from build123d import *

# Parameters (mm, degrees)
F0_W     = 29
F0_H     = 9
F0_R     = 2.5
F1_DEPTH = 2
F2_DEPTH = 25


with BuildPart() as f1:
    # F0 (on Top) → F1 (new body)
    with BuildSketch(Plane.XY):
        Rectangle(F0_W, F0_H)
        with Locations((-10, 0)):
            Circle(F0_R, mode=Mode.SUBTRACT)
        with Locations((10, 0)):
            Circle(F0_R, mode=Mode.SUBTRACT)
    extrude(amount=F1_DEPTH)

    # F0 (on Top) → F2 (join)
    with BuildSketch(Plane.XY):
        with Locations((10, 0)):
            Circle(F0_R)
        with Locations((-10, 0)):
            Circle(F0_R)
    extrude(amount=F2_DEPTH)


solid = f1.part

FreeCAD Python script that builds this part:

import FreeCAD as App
import Part
import Sketcher

V = App.Vector

doc = App.newDocument("Part")
body = doc.addObject("PartDesign::Body", "Body")

# Sketch on XY plane
sketch1 = body.newObject("Sketcher::SketchObject", "Sketch")
sketch1.AttachmentSupport = (doc.getObject("XY_Plane"), [""])
sketch1.MapMode = "FlatFace"
sketch1.addGeometry(Part.LineSegment(V(-14.5, 4.5, 0), V(-14.5, -4.5, 0)), False)
sketch1.addGeometry(Part.LineSegment(V(-14.5, -4.5, 0), V(14.5, -4.5, 0)), False)
sketch1.addGeometry(Part.LineSegment(V(14.5, -4.5, 0), V(14.5, 4.5, 0)), False)
sketch1.addGeometry(Part.LineSegment(V(14.5, 4.5, 0), V(-14.5, 4.5, 0)), False)
sketch1.addGeometry(Part.Circle(V(-10, 0, 0), V(0, 0, 1), 2.5), False)
sketch1.addGeometry(Part.Circle(V(10, 0, 0), V(0, 0, 1), 2.5), False)
sketch1.addConstraint(Sketcher.Constraint("Coincident", 0, 2, 1, 1))
sketch1.addConstraint(Sketcher.Constraint("Coincident", 1, 2, 2, 1))
sketch1.addConstraint(Sketcher.Constraint("Coincident", 2, 2, 3, 1))
sketch1.addConstraint(Sketcher.Constraint("Coincident", 3, 2, 0, 1))
sketch1.addConstraint(Sketcher.Constraint("Vertical", 0))
sketch1.addConstraint(Sketcher.Constraint("Horizontal", 1))
sketch1.addConstraint(Sketcher.Constraint("Vertical", 2))
sketch1.addConstraint(Sketcher.Constraint("Horizontal", 3))
sketch1.addConstraint(Sketcher.Constraint("Equal", 4, 5))
sketch1.addConstraint(Sketcher.Constraint("Symmetric", 4, 3, 5, 3, -1, 1))
sketch1.addConstraint(Sketcher.Constraint("Symmetric", 0, 2, 2, 2, -1, 1))
sketch1.addConstraint(Sketcher.Constraint("PointOnObject", 4, 3, -1))
sketch1.addConstraint(Sketcher.Constraint("Diameter", 4, 5.0))
sketch1.addConstraint(Sketcher.Constraint("DistanceX", 1, 1, 1, 2, 29.0))
sketch1.addConstraint(Sketcher.Constraint("DistanceY", 0, 2, 0, 1, 9.0))
sketch1.addConstraint(Sketcher.Constraint("DistanceX", 4, 3, -1, 1, 10.0))
pad1 = body.newObject("PartDesign::Pad", "Pad")
pad1.Profile = sketch1
pad1.Length = 2

# Sketch on XY plane
sketch2 = body.newObject("Sketcher::SketchObject", "Sketch001")
sketch2.AttachmentSupport = (doc.getObject("XY_Plane"), [""])
sketch2.MapMode = "FlatFace"
sketch2.addGeometry(Part.Circle(V(10, 0, 0), V(0, 0, 1), 2.5), False)
sketch2.addGeometry(Part.Circle(V(-10, 0, 0), V(0, 0, 1), 2.5), False)
sketch2.addConstraint(Sketcher.Constraint("Equal", 0, 1))
sketch2.addConstraint(Sketcher.Constraint("Symmetric", 0, 3, 1, 3, -1, 1))
sketch2.addConstraint(Sketcher.Constraint("PointOnObject", 0, 3, -1))
sketch2.addConstraint(Sketcher.Constraint("Diameter", 0, 5.0))
sketch2.addConstraint(Sketcher.Constraint("DistanceX", -1, 1, 0, 3, 10.0))
pad2 = body.newObject("PartDesign::Pad", "Pad001")
pad2.Profile = sketch2
pad2.Length = 25

doc.recompute()
